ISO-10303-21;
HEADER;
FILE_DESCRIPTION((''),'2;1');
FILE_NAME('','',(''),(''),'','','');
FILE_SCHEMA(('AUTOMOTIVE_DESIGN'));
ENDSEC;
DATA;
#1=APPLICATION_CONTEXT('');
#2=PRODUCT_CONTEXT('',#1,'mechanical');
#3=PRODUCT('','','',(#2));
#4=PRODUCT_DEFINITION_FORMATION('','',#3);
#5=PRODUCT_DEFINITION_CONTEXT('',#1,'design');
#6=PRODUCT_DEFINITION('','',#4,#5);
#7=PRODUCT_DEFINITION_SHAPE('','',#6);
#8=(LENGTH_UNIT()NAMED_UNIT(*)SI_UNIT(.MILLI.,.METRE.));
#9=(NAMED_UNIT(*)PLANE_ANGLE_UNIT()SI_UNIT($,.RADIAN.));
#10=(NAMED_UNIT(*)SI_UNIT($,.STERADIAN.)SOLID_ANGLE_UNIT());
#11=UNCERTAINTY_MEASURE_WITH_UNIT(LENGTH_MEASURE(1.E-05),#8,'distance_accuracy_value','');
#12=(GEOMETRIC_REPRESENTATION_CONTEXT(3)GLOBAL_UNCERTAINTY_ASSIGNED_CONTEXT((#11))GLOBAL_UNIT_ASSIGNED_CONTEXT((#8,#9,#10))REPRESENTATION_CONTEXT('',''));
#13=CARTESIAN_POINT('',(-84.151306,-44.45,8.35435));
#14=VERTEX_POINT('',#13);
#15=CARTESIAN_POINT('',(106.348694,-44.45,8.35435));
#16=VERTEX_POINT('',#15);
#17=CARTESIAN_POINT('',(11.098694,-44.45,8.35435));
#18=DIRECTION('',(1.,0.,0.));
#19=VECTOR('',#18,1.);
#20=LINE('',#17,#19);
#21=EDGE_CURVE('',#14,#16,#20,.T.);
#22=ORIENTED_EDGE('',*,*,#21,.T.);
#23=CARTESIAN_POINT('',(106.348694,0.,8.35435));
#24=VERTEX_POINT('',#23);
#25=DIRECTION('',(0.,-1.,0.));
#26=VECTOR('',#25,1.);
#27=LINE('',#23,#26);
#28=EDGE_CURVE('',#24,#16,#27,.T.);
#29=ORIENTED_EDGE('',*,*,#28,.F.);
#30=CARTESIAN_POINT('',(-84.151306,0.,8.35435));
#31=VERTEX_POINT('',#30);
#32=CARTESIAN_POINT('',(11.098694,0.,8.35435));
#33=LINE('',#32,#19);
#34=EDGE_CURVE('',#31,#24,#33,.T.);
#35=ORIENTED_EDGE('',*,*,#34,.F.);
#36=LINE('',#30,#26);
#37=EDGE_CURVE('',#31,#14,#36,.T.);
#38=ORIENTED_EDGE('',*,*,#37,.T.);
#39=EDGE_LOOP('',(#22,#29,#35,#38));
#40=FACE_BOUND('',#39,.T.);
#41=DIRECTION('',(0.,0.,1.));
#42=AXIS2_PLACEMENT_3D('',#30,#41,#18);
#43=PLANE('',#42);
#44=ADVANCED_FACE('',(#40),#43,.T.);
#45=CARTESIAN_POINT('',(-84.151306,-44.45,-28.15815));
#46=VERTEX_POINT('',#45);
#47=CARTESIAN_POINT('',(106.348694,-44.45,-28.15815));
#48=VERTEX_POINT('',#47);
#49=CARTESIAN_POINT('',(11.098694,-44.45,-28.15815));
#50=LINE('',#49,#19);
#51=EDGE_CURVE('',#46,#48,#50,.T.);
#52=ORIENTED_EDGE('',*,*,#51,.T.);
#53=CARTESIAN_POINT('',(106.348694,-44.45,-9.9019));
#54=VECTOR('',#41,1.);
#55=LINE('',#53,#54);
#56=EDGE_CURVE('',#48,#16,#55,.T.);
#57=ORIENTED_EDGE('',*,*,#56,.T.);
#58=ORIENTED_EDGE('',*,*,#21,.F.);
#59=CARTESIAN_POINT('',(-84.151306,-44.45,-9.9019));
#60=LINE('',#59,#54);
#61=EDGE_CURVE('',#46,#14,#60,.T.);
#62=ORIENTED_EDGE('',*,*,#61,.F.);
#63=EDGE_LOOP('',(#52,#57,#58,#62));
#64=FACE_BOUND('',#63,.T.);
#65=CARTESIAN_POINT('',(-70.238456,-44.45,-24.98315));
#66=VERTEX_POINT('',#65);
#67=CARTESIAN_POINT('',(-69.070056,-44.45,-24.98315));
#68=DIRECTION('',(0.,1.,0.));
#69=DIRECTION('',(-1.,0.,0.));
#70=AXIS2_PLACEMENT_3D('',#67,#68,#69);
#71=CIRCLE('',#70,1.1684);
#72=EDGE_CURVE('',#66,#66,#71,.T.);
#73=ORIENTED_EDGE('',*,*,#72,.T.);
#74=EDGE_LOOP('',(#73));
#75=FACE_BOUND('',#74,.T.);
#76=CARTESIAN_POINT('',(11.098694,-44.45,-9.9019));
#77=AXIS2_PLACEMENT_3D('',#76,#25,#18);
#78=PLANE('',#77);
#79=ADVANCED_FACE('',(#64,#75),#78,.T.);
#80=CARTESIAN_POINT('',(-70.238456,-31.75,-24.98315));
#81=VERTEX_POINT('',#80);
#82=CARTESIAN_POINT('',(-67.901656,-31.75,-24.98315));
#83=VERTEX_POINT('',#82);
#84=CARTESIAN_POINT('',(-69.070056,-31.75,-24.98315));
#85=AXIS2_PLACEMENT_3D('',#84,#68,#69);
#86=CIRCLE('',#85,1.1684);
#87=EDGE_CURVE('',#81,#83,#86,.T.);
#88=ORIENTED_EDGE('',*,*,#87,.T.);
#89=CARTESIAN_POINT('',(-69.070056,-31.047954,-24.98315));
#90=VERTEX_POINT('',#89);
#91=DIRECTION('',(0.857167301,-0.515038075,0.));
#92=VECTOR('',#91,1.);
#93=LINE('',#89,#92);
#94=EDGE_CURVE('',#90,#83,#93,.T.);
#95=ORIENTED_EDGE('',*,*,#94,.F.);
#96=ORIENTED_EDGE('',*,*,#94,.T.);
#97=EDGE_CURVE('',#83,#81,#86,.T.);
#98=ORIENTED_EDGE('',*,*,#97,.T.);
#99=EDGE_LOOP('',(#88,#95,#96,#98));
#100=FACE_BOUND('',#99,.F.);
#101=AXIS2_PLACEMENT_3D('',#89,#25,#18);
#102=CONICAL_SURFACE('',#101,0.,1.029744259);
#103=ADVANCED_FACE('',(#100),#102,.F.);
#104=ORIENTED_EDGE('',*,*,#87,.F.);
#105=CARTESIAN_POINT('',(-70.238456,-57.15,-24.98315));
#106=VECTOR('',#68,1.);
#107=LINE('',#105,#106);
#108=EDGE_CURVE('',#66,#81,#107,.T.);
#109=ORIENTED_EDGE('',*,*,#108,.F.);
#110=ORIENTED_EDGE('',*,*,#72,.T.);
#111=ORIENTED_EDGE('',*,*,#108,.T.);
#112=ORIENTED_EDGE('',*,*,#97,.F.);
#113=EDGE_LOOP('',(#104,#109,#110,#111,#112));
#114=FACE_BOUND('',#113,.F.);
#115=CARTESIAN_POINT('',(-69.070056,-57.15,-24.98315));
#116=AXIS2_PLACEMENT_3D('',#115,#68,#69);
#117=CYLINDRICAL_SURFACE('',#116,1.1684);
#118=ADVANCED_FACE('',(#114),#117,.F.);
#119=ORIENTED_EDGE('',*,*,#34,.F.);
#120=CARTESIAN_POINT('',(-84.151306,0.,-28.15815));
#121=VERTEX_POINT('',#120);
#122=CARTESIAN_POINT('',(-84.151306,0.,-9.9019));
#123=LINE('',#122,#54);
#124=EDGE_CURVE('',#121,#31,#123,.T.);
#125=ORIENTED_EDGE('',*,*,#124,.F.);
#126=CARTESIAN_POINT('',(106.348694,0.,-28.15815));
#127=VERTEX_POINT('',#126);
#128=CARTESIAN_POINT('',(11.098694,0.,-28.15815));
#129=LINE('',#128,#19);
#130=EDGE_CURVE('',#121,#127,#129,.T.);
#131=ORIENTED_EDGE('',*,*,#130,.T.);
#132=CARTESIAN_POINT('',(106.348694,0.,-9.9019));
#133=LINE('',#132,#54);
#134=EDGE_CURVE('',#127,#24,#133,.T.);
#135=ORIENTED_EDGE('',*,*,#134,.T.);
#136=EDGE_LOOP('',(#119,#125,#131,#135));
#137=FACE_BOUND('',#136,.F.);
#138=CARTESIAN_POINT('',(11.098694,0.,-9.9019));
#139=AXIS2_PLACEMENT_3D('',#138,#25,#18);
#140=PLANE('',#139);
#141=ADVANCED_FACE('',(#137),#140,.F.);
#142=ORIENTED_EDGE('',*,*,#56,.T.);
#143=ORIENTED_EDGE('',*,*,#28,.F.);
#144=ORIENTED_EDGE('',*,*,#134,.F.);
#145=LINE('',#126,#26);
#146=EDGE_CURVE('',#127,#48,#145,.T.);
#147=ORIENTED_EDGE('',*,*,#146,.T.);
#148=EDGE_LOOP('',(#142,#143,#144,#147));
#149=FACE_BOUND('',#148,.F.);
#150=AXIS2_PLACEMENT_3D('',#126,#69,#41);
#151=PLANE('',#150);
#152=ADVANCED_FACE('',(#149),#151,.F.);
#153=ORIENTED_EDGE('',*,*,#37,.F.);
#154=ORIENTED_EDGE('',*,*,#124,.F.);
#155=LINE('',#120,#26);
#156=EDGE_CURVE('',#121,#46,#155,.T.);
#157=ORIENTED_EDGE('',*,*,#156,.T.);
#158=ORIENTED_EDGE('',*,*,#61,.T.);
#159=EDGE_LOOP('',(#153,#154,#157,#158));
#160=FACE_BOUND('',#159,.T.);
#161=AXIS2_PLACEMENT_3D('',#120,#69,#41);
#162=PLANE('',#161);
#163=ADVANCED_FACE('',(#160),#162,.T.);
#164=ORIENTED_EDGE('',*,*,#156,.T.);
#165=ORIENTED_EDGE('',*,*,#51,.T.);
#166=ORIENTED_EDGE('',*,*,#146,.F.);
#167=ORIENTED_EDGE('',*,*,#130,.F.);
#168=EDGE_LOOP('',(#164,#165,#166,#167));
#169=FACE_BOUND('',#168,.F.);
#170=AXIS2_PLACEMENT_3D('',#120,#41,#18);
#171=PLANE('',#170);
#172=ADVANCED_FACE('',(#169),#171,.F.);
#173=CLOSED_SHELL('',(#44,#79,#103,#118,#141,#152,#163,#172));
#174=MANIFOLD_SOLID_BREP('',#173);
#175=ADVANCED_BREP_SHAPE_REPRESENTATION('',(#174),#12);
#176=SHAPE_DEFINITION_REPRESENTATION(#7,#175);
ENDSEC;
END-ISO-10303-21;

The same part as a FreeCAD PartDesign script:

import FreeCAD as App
import Part
import Sketcher
Q = App.Units.Quantity

doc = App.newDocument("Part")
params = doc.addObject("Spreadsheet::Sheet", "Params")
for row, (alias, value) in enumerate([
    ("sketch1_width", "7.5 in"),
    ("sketch1_height", "1.4375 in"),
    ("pad1_length", "1.75 in"),
    ("sketch2_diameter", "0.092 in"),
    ("hole_diameter", "0.092 in"),
    ("hole_depth", "0.5 in"),
], start=1):
    params.set(f"A{row}", alias)
    params.set(f"B{row}", "=" + value)
    params.setAlias(f"B{row}", alias)

body = doc.addObject("PartDesign::Body", "Body")

# Sketch on XZ plane
sketch1 = body.newObject("Sketcher::SketchObject", "Sketch")
sketch1.AttachmentSupport = (doc.getObject("XZ_Plane"), [""])
sketch1.MapMode = "FlatFace"
sketch1.addGeometry(Part.LineSegment(App.Vector(-84, 8, 0), App.Vector(-84, -28, 0)), False)
sketch1.addGeometry(Part.LineSegment(App.Vector(-84, -28, 0), App.Vector(106, -28, 0)), False)
sketch1.addGeometry(Part.LineSegment(App.Vector(106, -28, 0), App.Vector(106, 8, 0)), False)
sketch1.addGeometry(Part.LineSegment(App.Vector(106, 8, 0), App.Vector(-84, 8, 0)), False)
sketch1.addConstraint(Sketcher.Constraint("Coincident", 0, 2, 1, 1))
sketch1.addConstraint(Sketcher.Constraint("Coincident", 1, 2, 2, 1))
sketch1.addConstraint(Sketcher.Constraint("Coincident", 2, 2, 3, 1))
sketch1.addConstraint(Sketcher.Constraint("Coincident", 3, 2, 0, 1))
sketch1.addConstraint(Sketcher.Constraint("Vertical", 0))
sketch1.addConstraint(Sketcher.Constraint("Horizontal", 1))
sketch1.addConstraint(Sketcher.Constraint("Vertical", 2))
sketch1.addConstraint(Sketcher.Constraint("Horizontal", 3))
sketch1.addConstraint(Sketcher.Constraint("DistanceX", 1, 1, 1, 2, Q("7.5 in")))
sketch1.addConstraint(Sketcher.Constraint("DistanceY", 0, 2, 0, 1, Q("1.4375 in")))
sketch1.addConstraint(Sketcher.Constraint("DistanceY", 0, 2, -1, 1, 28.15815))
sketch1.addConstraint(Sketcher.Constraint("DistanceX", 0, 2, -1, 1, 84.151306))
sketch1.setExpression("Constraints[8]", "Params.sketch1_width")
sketch1.setExpression("Constraints[9]", "Params.sketch1_height")
pad1 = body.newObject("PartDesign::Pad", "Pad")
pad1.Profile = sketch1
pad1.setExpression("Length", "Params.pad1_length")

# Sketch on XZ plane
sketch2 = body.newObject("Sketcher::SketchObject", "Sketch001")
sketch2.AttachmentSupport = (doc.getObject("XZ_Plane"), [""])
sketch2.MapMode = "FlatFace"
sketch2.AttachmentOffset = App.Placement(App.Vector(0, 0, 1.75 * 25.4), App.Rotation())
sketch2.addGeometry(Part.Circle(App.Vector(-69.1, -25, 0), App.Vector(0, 0, 1), 1.2), False)
sketch2.addConstraint(Sketcher.Constraint("Diameter", 0, Q("0.092 in")))
sketch2.addConstraint(Sketcher.Constraint("DistanceY", 0, 3, -1, 1, 24.98315))
sketch2.addConstraint(Sketcher.Constraint("DistanceX", 0, 3, -1, 1, 69.070056))
sketch2.setExpression("Constraints[0]", "Params.sketch2_diameter")
doc.recompute()
hole = body.newObject("PartDesign::Hole", "Hole")
hole.Profile = sketch2
hole.ThreadType = "None"
hole.setExpression("Diameter", "Params.hole_diameter")
hole.DepthType = "Dimension"
hole.setExpression("Depth", "Params.hole_depth")
hole.DrillPoint = "Angled"
hole.DrillPointAngle = 118

doc.recompute()
